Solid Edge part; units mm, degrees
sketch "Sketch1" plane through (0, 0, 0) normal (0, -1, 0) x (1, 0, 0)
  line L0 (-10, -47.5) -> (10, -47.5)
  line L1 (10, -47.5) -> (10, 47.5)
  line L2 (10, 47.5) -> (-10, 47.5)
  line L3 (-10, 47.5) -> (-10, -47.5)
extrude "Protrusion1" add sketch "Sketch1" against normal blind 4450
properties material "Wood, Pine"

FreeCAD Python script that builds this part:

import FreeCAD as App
import Part
import Sketcher


def add_polygon(sketch, points):
    """Adds a closed chain of lines whose ends are joined by coincident constraints."""
    first, n = sketch.GeometryCount, len(points)
    for a, b in zip(points, points[1:] + points[:1]):
        sketch.addGeometry(Part.LineSegment(App.Vector(*a, 0), App.Vector(*b, 0)), False)
    for i in range(n):
        sketch.addConstraint(Sketcher.Constraint("Coincident", first + i, 2, first + (i + 1) % n, 1))

doc = App.newDocument("Part")
params = doc.addObject("Spreadsheet::Sheet", "Params")
for row, (alias, value) in enumerate([
    ("sketch1_width", "20 mm"),
    ("sketch1_height", "95 mm"),
    ("pad1_length", "4450 mm"),
], start=1):
    params.set(f"A{row}", alias)
    params.set(f"B{row}", "=" + value)
    params.setAlias(f"B{row}", alias)

body = doc.addObject("PartDesign::Body", "Body")

# Sketch on XZ plane
sketch1 = doc.addObject("Sketcher::SketchObject", "Sketch")
body.addObject(sketch1)
sketch1.AttachmentSupport = (doc.XZ_Plane, [""])
sketch1.MapMode = "FlatFace"
add_polygon(sketch1, [(-10, 48), (-10, -48), (10, -48), (10, 48)])  # lines 0-3
sketch1.addConstraint(Sketcher.Constraint("Vertical", 0))
sketch1.addConstraint(Sketcher.Constraint("Horizontal", 1))
sketch1.addConstraint(Sketcher.Constraint("Vertical", 2))
sketch1.addConstraint(Sketcher.Constraint("Horizontal", 3))
sketch1.addConstraint(Sketcher.Constraint("Symmetric", 0, 2, 2, 2, -1, 1))
sketch1.addConstraint(Sketcher.Constraint("DistanceX", 1, 1, 1, 2, 20.0))
sketch1.addConstraint(Sketcher.Constraint("DistanceY", 0, 2, 0, 1, 95.0))
sketch1.setExpression("Constraints[9]", "Params.sketch1_width")
sketch1.setExpression("Constraints[10]", "Params.sketch1_height")
pad1 = doc.addObject("PartDesign::Pad", "Pad")
body.addObject(pad1)
pad1.Profile = sketch1
pad1.setExpression("Length", "Params.pad1_length")
pad1.Reversed = True

doc.recompute()
